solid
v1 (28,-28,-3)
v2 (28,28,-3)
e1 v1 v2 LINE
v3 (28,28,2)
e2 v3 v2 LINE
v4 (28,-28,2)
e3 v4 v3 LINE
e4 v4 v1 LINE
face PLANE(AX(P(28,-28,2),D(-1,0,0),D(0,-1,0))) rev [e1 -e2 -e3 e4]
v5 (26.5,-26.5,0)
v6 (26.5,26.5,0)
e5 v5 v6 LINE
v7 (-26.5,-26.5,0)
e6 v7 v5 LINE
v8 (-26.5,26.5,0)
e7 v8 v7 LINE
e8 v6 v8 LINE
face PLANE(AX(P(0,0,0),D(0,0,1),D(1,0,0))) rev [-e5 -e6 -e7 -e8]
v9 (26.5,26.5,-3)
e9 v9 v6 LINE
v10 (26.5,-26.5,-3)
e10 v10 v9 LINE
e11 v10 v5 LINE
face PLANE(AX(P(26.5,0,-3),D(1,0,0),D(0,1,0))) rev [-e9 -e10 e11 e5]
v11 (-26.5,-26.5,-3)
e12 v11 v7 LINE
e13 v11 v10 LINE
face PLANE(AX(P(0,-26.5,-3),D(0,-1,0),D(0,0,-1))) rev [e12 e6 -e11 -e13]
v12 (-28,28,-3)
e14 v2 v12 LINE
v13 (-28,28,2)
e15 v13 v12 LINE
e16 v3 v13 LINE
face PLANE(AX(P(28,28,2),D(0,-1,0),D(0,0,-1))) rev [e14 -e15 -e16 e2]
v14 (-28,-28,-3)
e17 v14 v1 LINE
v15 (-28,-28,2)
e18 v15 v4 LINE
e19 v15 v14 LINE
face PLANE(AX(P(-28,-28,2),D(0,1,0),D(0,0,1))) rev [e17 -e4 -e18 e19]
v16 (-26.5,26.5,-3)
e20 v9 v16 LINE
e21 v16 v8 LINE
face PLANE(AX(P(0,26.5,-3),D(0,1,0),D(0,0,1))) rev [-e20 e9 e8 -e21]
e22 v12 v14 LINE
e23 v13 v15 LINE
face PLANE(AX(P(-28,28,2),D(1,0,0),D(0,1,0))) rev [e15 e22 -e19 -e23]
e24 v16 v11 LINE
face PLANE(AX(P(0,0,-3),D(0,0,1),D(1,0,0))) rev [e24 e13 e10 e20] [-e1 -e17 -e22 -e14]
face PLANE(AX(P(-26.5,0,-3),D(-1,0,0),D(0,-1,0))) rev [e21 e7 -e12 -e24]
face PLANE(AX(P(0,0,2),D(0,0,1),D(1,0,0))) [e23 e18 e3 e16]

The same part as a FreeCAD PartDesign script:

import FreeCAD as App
import Part
import Sketcher
Q = App.Units.Quantity


def add_polygon(sketch, points):
    """Adds a closed chain of lines whose ends are joined by coincident constraints."""
    first, n = sketch.GeometryCount, len(points)
    for a, b in zip(points, points[1:] + points[:1]):
        sketch.addGeometry(Part.LineSegment(App.Vector(*a, 0), App.Vector(*b, 0)), False)
    for i in range(n):
        sketch.addConstraint(Sketcher.Constraint("Coincident", first + i, 2, first + (i + 1) % n, 1))

doc = App.newDocument("Part")
params = doc.addObject("Spreadsheet::Sheet", "Params")
for row, (alias, value) in enumerate([
    ("sketch1_width", "56 mm"),
    ("pad1_length", "2 mm"),
    ("sketch2_width", "56 mm"),
    ("sketch2_width2", "53 mm"),
    ("pad2_length", "3 mm"),
], start=1):
    params.set(f"A{row}", alias)
    params.set(f"B{row}", "=" + value)
    params.setAlias(f"B{row}", alias)

body = doc.addObject("PartDesign::Body", "Body")

# Sketch on XY plane
sketch1 = body.newObject("Sketcher::SketchObject", "Sketch")
sketch1.AttachmentSupport = (doc.getObject("XY_Plane"), [""])
sketch1.MapMode = "FlatFace"
add_polygon(sketch1, [(-28, 28), (-28, -28), (28, -28), (28, 28)])  # lines 0-3
sketch1.addConstraint(Sketcher.Constraint("Vertical", 0))
sketch1.addConstraint(Sketcher.Constraint("Horizontal", 1))
sketch1.addConstraint(Sketcher.Constraint("Vertical", 2))
sketch1.addConstraint(Sketcher.Constraint("Horizontal", 3))
sketch1.addConstraint(Sketcher.Constraint("Symmetric", 0, 2, 2, 2, -1, 1))
sketch1.addConstraint(Sketcher.Constraint("Equal", 3, 0))
sketch1.addConstraint(Sketcher.Constraint("DistanceX", 1, 1, 1, 2, Q("56 mm")))
sketch1.setExpression("Constraints[10]", "Params.sketch1_width")
pad1 = body.newObject("PartDesign::Pad", "Pad")
pad1.Profile = sketch1
pad1.setExpression("Length", "Params.pad1_length")

# Sketch on XY plane
sketch2 = body.newObject("Sketcher::SketchObject", "Sketch001")
sketch2.AttachmentSupport = (doc.getObject("XY_Plane"), [""])
sketch2.MapMode = "FlatFace"
add_polygon(sketch2, [(-28, 28), (-28, -28), (28, -28), (28, 28)])  # lines 0-3
add_polygon(sketch2, [(26.5, -26.5), (-26.5, -26.5), (-26.5, 26.5), (26.5, 26.5)])  # lines 4-7
sketch2.addConstraint(Sketcher.Constraint("Vertical", 0))
sketch2.addConstraint(Sketcher.Constraint("Horizontal", 1))
sketch2.addConstraint(Sketcher.Constraint("Vertical", 2))
sketch2.addConstraint(Sketcher.Constraint("Horizontal", 3))
sketch2.addConstraint(Sketcher.Constraint("Horizontal", 4))
sketch2.addConstraint(Sketcher.Constraint("Vertical", 5))
sketch2.addConstraint(Sketcher.Constraint("Horizontal", 6))
sketch2.addConstraint(Sketcher.Constraint("Vertical", 7))
sketch2.addConstraint(Sketcher.Constraint("Symmetric", 0, 2, 2, 2, -1, 1))
sketch2.addConstraint(Sketcher.Constraint("Symmetric", 4, 2, 6, 2, -1, 1))
sketch2.addConstraint(Sketcher.Constraint("Equal", 3, 0))
sketch2.addConstraint(Sketcher.Constraint("Equal", 6, 5))
sketch2.addConstraint(Sketcher.Constraint("DistanceX", 1, 1, 1, 2, Q("56 mm")))
sketch2.addConstraint(Sketcher.Constraint("DistanceX", 4, 2, 4, 1, Q("53 mm")))
sketch2.setExpression("Constraints[20]", "Params.sketch2_width")
sketch2.setExpression("Constraints[21]", "Params.sketch2_width2")
pad2 = body.newObject("PartDesign::Pad", "Pad001")
pad2.Profile = sketch2
pad2.setExpression("Length", "Params.pad2_length")
pad2.Reversed = True

doc.recompute()
